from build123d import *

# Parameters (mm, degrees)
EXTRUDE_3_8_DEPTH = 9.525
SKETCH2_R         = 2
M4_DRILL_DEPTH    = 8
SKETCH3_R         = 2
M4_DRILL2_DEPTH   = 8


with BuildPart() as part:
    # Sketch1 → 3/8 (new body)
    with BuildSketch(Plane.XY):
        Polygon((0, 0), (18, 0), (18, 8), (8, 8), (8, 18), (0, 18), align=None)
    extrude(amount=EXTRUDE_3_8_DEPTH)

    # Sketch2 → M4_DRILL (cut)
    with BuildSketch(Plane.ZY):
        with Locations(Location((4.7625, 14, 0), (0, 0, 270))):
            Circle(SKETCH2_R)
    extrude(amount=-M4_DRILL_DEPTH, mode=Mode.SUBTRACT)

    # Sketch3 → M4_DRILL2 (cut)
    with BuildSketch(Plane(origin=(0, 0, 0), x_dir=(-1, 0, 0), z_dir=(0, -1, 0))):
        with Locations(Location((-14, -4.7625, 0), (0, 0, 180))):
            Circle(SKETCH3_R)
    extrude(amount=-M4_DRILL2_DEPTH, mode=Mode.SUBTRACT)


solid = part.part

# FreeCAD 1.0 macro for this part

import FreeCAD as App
import Part
import Sketcher

V = App.Vector
Q = App.Units.Quantity

doc = App.newDocument("Part")
body = doc.addObject("PartDesign::Body", "Body")

# Sketch on XY plane
sketch1 = body.newObject("Sketcher::SketchObject", "Sketch")
sketch1.AttachmentSupport = (doc.getObject("XY_Plane"), [""])
sketch1.MapMode = "FlatFace"
sketch1.addGeometry(Part.LineSegment(V(0, 0, 0), V(18, 0, 0)), False)
sketch1.addGeometry(Part.LineSegment(V(18, 0, 0), V(18, 8, 0)), False)
sketch1.addGeometry(Part.LineSegment(V(18, 8, 0), V(8, 8, 0)), False)
sketch1.addGeometry(Part.LineSegment(V(8, 8, 0), V(8, 18, 0)), False)
sketch1.addGeometry(Part.LineSegment(V(8, 18, 0), V(0, 18, 0)), False)
sketch1.addGeometry(Part.LineSegment(V(0, 18, 0), V(0, 0, 0)), False)
sketch1.addConstraint(Sketcher.Constraint("Coincident", 0, 2, 1, 1))
sketch1.addConstraint(Sketcher.Constraint("Coincident", 1, 2, 2, 1))
sketch1.addConstraint(Sketcher.Constraint("Coincident", 2, 2, 3, 1))
sketch1.addConstraint(Sketcher.Constraint("Coincident", 3, 2, 4, 1))
sketch1.addConstraint(Sketcher.Constraint("Coincident", 4, 2, 5, 1))
sketch1.addConstraint(Sketcher.Constraint("Coincident", 5, 2, 0, 1))
sketch1.addConstraint(Sketcher.Constraint("Horizontal", 0))
sketch1.addConstraint(Sketcher.Constraint("Vertical", 1))
sketch1.addConstraint(Sketcher.Constraint("Horizontal", 2))
sketch1.addConstraint(Sketcher.Constraint("Vertical", 3))
sketch1.addConstraint(Sketcher.Constraint("Horizontal", 4))
sketch1.addConstraint(Sketcher.Constraint("Vertical", 5))
sketch1.addConstraint(Sketcher.Constraint("Coincident", 5, 2, -1, 1))
sketch1.addConstraint(Sketcher.Constraint("Equal", 4, 1))
sketch1.addConstraint(Sketcher.Constraint("Equal", 2, 3))
sketch1.addConstraint(Sketcher.Constraint("DistanceX", 0, 1, 0, 2, Q("18 mm")))
sketch1.addConstraint(Sketcher.Constraint("DistanceX", 2, 2, 2, 1, Q("10 mm")))
pad1 = body.newObject("PartDesign::Pad", "Pad")
pad1.Profile = sketch1
pad1.Length = 9.525

# Sketch on YZ plane
sketch2 = body.newObject("Sketcher::SketchObject", "Sketch001")
sketch2.AttachmentSupport = (doc.getObject("YZ_Plane"), [""])
sketch2.MapMode = "FlatFace"
sketch2.addGeometry(Part.Circle(V(14, 4.8, 0), V(0, 0, 1), 2), False)
sketch2.addConstraint(Sketcher.Constraint("Diameter", 0, Q("4 mm")))
sketch2.addConstraint(Sketcher.Constraint("DistanceX", -1, 1, 0, 3, Q("14 mm")))
sketch2.addConstraint(Sketcher.Constraint("DistanceY", -1, 1, 0, 3, Q("4.7625 mm")))
pocket1 = body.newObject("PartDesign::Pocket", "Pocket")
pocket1.Profile = sketch2
pocket1.Length = 8
pocket1.Reversed = True

# Sketch on XZ plane
sketch3 = body.newObject("Sketcher::SketchObject", "Sketch002")
sketch3.AttachmentSupport = (doc.getObject("XZ_Plane"), [""])
sketch3.MapMode = "FlatFace"
sketch3.addGeometry(Part.Circle(V(14, 4.8, 0), V(0, 0, 1), 2), False)
sketch3.addConstraint(Sketcher.Constraint("Diameter", 0, Q("4 mm")))
sketch3.addConstraint(Sketcher.Constraint("DistanceX", -1, 1, 0, 3, Q("14 mm")))
sketch3.addConstraint(Sketcher.Constraint("DistanceY", -1, 1, 0, 3, Q("4.7625 mm")))
pocket2 = body.newObject("PartDesign::Pocket", "Pocket001")
pocket2.Profile = sketch3
pocket2.Length = 8

doc.recompute()
